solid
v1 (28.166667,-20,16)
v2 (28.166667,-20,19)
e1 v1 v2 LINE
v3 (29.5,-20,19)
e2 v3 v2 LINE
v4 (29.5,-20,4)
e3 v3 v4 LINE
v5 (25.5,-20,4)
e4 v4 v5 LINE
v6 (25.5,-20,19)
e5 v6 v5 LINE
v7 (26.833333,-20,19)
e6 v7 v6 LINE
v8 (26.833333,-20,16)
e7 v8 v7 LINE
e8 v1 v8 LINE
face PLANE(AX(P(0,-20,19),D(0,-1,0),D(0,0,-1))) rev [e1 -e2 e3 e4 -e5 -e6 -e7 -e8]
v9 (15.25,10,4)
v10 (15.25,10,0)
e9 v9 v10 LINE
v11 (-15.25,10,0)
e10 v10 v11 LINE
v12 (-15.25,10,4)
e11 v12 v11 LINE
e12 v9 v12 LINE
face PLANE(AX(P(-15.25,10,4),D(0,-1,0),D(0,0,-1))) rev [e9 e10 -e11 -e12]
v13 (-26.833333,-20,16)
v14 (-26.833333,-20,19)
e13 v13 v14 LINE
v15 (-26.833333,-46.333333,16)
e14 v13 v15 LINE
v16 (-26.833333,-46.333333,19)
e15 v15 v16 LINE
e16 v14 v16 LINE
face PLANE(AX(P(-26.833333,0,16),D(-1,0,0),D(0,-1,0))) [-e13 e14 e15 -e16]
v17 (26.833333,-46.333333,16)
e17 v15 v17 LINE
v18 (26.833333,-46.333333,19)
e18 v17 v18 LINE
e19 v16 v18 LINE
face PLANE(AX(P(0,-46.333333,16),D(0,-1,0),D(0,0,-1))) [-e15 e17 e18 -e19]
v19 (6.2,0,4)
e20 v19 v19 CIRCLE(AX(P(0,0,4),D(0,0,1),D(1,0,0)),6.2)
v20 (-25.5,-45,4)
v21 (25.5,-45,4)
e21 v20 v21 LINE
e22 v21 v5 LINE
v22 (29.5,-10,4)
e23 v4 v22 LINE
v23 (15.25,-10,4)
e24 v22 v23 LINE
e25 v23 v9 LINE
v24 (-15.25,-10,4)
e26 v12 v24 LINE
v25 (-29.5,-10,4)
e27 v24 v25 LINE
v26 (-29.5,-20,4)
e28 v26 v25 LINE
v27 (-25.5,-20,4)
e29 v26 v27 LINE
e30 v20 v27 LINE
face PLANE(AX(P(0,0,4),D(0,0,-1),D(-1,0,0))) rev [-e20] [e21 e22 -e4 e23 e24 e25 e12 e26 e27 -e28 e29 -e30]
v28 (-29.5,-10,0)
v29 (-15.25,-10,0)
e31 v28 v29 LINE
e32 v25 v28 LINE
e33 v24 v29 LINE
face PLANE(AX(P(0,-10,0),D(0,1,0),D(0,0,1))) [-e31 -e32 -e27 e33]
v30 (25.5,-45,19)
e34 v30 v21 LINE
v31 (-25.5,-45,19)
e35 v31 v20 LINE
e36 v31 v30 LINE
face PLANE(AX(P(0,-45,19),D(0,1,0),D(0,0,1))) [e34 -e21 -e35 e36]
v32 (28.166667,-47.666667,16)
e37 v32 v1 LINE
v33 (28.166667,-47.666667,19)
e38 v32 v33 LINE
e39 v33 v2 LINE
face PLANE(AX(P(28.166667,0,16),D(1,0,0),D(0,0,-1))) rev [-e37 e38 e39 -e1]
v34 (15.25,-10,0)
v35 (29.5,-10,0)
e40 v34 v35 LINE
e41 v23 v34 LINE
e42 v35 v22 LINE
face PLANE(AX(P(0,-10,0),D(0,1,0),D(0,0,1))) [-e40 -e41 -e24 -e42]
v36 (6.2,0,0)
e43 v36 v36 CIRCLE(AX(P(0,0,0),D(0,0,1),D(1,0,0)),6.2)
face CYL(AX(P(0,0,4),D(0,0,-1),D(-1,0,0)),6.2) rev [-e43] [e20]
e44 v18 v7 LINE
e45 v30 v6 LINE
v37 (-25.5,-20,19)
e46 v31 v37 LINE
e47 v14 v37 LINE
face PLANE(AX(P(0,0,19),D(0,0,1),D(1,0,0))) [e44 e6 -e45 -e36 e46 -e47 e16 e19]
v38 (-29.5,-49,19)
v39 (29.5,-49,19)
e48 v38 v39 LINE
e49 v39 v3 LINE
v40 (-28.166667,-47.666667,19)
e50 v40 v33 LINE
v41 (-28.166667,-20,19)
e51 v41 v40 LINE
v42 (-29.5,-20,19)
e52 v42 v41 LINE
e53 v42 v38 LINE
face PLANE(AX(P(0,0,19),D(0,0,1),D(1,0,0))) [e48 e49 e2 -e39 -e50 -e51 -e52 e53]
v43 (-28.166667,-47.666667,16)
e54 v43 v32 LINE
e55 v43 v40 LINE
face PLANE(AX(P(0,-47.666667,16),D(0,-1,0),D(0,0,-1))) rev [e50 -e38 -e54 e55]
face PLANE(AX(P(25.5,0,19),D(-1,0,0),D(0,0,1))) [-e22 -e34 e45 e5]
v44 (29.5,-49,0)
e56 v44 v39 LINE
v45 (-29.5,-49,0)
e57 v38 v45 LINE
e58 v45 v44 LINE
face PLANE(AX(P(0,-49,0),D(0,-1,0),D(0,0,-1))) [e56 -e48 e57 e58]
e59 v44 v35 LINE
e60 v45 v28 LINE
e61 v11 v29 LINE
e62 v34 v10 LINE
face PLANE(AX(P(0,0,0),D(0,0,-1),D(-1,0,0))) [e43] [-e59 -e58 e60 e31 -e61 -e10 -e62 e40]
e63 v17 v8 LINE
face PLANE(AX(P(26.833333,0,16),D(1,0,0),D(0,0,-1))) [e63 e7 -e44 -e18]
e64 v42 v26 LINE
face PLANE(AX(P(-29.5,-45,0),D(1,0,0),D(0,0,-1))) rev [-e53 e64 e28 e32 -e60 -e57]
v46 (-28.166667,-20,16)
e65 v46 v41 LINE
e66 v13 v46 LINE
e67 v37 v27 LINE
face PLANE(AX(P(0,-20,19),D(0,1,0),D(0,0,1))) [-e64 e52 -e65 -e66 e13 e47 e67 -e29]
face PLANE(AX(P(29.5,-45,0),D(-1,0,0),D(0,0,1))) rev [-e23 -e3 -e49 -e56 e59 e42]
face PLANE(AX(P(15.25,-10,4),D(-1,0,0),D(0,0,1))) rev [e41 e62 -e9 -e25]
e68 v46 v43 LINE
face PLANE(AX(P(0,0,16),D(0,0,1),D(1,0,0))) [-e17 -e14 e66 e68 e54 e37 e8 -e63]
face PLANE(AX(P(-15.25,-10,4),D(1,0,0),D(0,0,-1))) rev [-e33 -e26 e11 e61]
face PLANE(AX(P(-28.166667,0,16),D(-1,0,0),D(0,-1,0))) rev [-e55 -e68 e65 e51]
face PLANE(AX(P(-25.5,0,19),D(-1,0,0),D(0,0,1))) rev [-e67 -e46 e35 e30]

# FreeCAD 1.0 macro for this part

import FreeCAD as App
import Part
import Sketcher
Q = App.Units.Quantity

doc = App.newDocument("Part")
params = doc.addObject("Spreadsheet::Sheet", "Params")
for row, (alias, value) in enumerate([
    ("sketch1_diameter", "12.4 mm"),
    ("sketch1_height", "20 mm"),
    ("sketch1_width", "30.5 mm"),
    ("pad1_length", "4 mm"),
    ("sketch2_width", "59 mm"),
    ("sketch2_height", "4 mm"),
    ("pad2_length", "35 mm"),
    ("sketch3_width", "59 mm"),
    ("sketch3_height", "4 mm"),
    ("pad3_length", "4 mm"),
    ("sketch4_width", "59 mm"),
    ("sketch4_width2", "4 mm"),
    ("sketch4_height", "29 mm"),
    ("sketch4_height2", "25 mm"),
    ("pad4_length", "15 mm"),
    ("pocket1_length", "3 mm"),
], start=1):
    params.set(f"A{row}", alias)
    params.set(f"B{row}", "=" + value)
    params.setAlias(f"B{row}", alias)

body = doc.addObject("PartDesign::Body", "Body")

# Sketch on XY plane
sketch1 = body.newObject("Sketcher::SketchObject", "Sketch")
sketch1.AttachmentSupport = (doc.getObject("XY_Plane"), [""])
sketch1.MapMode = "FlatFace"
sketch1.addGeometry([
    Part.LineSegment(App.Vector(-15.25, 10, 0), App.Vector(-15.25, -10, 0)),  # 0
    Part.LineSegment(App.Vector(-15.25, -10, 0), App.Vector(15.25, -10, 0)),  # 1
    Part.LineSegment(App.Vector(15.25, -10, 0), App.Vector(15.25, 10, 0)),  # 2
    Part.LineSegment(App.Vector(15.25, 10, 0), App.Vector(-15.25, 10, 0)),  # 3
    Part.Circle(App.Vector(0, 0, 0), App.Vector(0, 0, 1), 6.2),  # 4
], False)
sketch1.addConstraint([
    Sketcher.Constraint("Coincident", 0, 2, 1, 1),
    Sketcher.Constraint("Coincident", 1, 2, 2, 1),
    Sketcher.Constraint("Coincident", 2, 2, 3, 1),
    Sketcher.Constraint("Coincident", 3, 2, 0, 1),
    Sketcher.Constraint("Vertical", 0),
    Sketcher.Constraint("Horizontal", 1),
    Sketcher.Constraint("Vertical", 2),
    Sketcher.Constraint("Horizontal", 3),
    Sketcher.Constraint("Coincident", 4, 3, -1, 1),
    Sketcher.Constraint("Symmetric", 0, 2, 2, 2, -1, 1),
    Sketcher.Constraint("Diameter", 4, Q("12.4 mm")),
    Sketcher.Constraint("DistanceY", 0, 2, 0, 1, Q("20 mm")),
    Sketcher.Constraint("DistanceX", 1, 1, 1, 2, Q("30.5 mm")),
])
sketch1.setExpression("Constraints[10]", "Params.sketch1_diameter")
sketch1.setExpression("Constraints[11]", "Params.sketch1_height")
sketch1.setExpression("Constraints[12]", "Params.sketch1_width")
pad1 = body.newObject("PartDesign::Pad", "Pad")
pad1.Profile = sketch1
pad1.setExpression("Length", "Params.pad1_length")

# Sketch on XZ plane
sketch2 = body.newObject("Sketcher::SketchObject", "Sketch001")
sketch2.AttachmentSupport = (doc.getObject("XZ_Plane"), [""])
sketch2.MapMode = "FlatFace"
sketch2.AttachmentOffset = App.Placement(App.Vector(0, 0, 10), App.Rotation())
sketch2.addGeometry([
    Part.LineSegment(App.Vector(-29.5, 4, 0), App.Vector(-29.5, 0, 0)),
    Part.LineSegment(App.Vector(-29.5, 0, 0), App.Vector(29.5, 0, 0)),
    Part.LineSegment(App.Vector(29.5, 0, 0), App.Vector(29.5, 4, 0)),
    Part.LineSegment(App.Vector(29.5, 4, 0), App.Vector(-29.5, 4, 0)),
], False)
sketch2.addConstraint([
    Sketcher.Constraint("Coincident", 0, 2, 1, 1),
    Sketcher.Constraint("Coincident", 1, 2, 2, 1),
    Sketcher.Constraint("Coincident", 2, 2, 3, 1),
    Sketcher.Constraint("Coincident", 3, 2, 0, 1),
    Sketcher.Constraint("Vertical", 0),
    Sketcher.Constraint("Horizontal", 1),
    Sketcher.Constraint("Vertical", 2),
    Sketcher.Constraint("Horizontal", 3),
    Sketcher.Constraint("Symmetric", 0, 2, 1, 2, -1, 1),
    Sketcher.Constraint("DistanceX", 1, 1, 1, 2, Q("59 mm")),
    Sketcher.Constraint("DistanceY", 0, 2, 0, 1, Q("4 mm")),
])
sketch2.setExpression("Constraints[9]", "Params.sketch2_width")
sketch2.setExpression("Constraints[10]", "Params.sketch2_height")
pad2 = body.newObject("PartDesign::Pad", "Pad001")
pad2.Profile = sketch2
pad2.setExpression("Length", "Params.pad2_length")

# Sketch on XZ plane
sketch3 = body.newObject("Sketcher::SketchObject", "Sketch002")
sketch3.AttachmentSupport = (doc.getObject("XZ_Plane"), [""])
sketch3.MapMode = "FlatFace"
sketch3.AttachmentOffset = App.Placement(App.Vector(0, 0, 45), App.Rotation())
sketch3.addGeometry([
    Part.LineSegment(App.Vector(-29.5, 4, 0), App.Vector(-29.5, 0, 0)),
    Part.LineSegment(App.Vector(-29.5, 0, 0), App.Vector(29.5, 0, 0)),
    Part.LineSegment(App.Vector(29.5, 0, 0), App.Vector(29.5, 4, 0)),
    Part.LineSegment(App.Vector(29.5, 4, 0), App.Vector(-29.5, 4, 0)),
], False)
sketch3.addConstraint([
    Sketcher.Constraint("Coincident", 0, 2, 1, 1),
    Sketcher.Constraint("Coincident", 1, 2, 2, 1),
    Sketcher.Constraint("Coincident", 2, 2, 3, 1),
    Sketcher.Constraint("Coincident", 3, 2, 0, 1),
    Sketcher.Constraint("Vertical", 0),
    Sketcher.Constraint("Horizontal", 1),
    Sketcher.Constraint("Vertical", 2),
    Sketcher.Constraint("Horizontal", 3),
    Sketcher.Constraint("Symmetric", 0, 2, 1, 2, -1, 1),
    Sketcher.Constraint("DistanceX", 1, 1, 1, 2, Q("59 mm")),
    Sketcher.Constraint("DistanceY", 0, 2, 0, 1, Q("4 mm")),
])
sketch3.setExpression("Constraints[9]", "Params.sketch3_width")
sketch3.setExpression("Constraints[10]", "Params.sketch3_height")
pad3 = body.newObject("PartDesign::Pad", "Pad002")
pad3.Profile = sketch3
pad3.setExpression("Length", "Params.pad3_length")

# Sketch on XY plane
sketch4 = body.newObject("Sketcher::SketchObject", "Sketch003")
sketch4.AttachmentSupport = (doc.getObject("XY_Plane"), [""])
sketch4.MapMode = "FlatFace"
sketch4.AttachmentOffset = App.Placement(App.Vector(0, 0, 4), App.Rotation())
sketch4.addGeometry([
    Part.LineSegment(App.Vector(-29.5, -20, 0), App.Vector(-29.5, -49, 0)),  # 0
    Part.LineSegment(App.Vector(-29.5, -49, 0), App.Vector(29.5, -49, 0)),  # 1
    Part.LineSegment(App.Vector(29.5, -49, 0), App.Vector(29.5, -20, 0)),  # 2
    Part.LineSegment(App.Vector(29.5, -20, 0), App.Vector(25.5, -20, 0)),  # 3
    Part.LineSegment(App.Vector(25.5, -20, 0), App.Vector(25.5, -45, 0)),  # 4
    Part.LineSegment(App.Vector(25.5, -45, 0), App.Vector(-25.5, -45, 0)),  # 5
    Part.LineSegment(App.Vector(-25.5, -45, 0), App.Vector(-25.5, -20, 0)),  # 6
    Part.LineSegment(App.Vector(-25.5, -20, 0), App.Vector(-29.5, -20, 0)),  # 7
], False)
sketch4.addConstraint([
    Sketcher.Constraint("Coincident", 0, 2, 1, 1),
    Sketcher.Constraint("Coincident", 1, 2, 2, 1),
    Sketcher.Constraint("Coincident", 2, 2, 3, 1),
    Sketcher.Constraint("Coincident", 3, 2, 4, 1),
    Sketcher.Constraint("Coincident", 4, 2, 5, 1),
    Sketcher.Constraint("Coincident", 5, 2, 6, 1),
    Sketcher.Constraint("Coincident", 6, 2, 7, 1),
    Sketcher.Constraint("Coincident", 7, 2, 0, 1),
    Sketcher.Constraint("Vertical", 0),
    Sketcher.Constraint("Horizontal", 1),
    Sketcher.Constraint("Vertical", 2),
    Sketcher.Constraint("Horizontal", 3),
    Sketcher.Constraint("Vertical", 4),
    Sketcher.Constraint("Horizontal", 5),
    Sketcher.Constraint("Vertical", 6),
    Sketcher.Constraint("Horizontal", 7),
    Sketcher.Constraint("Symmetric", 3, 2, 6, 2, -2),
    Sketcher.Constraint("Equal", 3, 7),
    Sketcher.Constraint("DistanceX", 1, 1, 1, 2, Q("59 mm")),
    Sketcher.Constraint("DistanceX", 3, 2, 3, 1, Q("4 mm")),
    Sketcher.Constraint("DistanceY", 0, 2, 0, 1, Q("29 mm")),
    Sketcher.Constraint("DistanceY", 4, 2, 4, 1, Q("25 mm")),
    Sketcher.Constraint("DistanceY", 0, 2, -1, 1, Q("49 mm")),
])
sketch4.setExpression("Constraints[18]", "Params.sketch4_width")
sketch4.setExpression("Constraints[19]", "Params.sketch4_width2")
sketch4.setExpression("Constraints[20]", "Params.sketch4_height")
sketch4.setExpression("Constraints[21]", "Params.sketch4_height2")
pad4 = body.newObject("PartDesign::Pad", "Pad003")
pad4.Profile = sketch4
pad4.setExpression("Length", "Params.pad4_length")

# Sketch on XY plane
sketch5 = body.newObject("Sketcher::SketchObject", "Sketch004")
sketch5.AttachmentSupport = (doc.getObject("XY_Plane"), [""])
sketch5.MapMode = "FlatFace"
sketch5.AttachmentOffset = App.Placement(App.Vector(0, 0, 19), App.Rotation())
sketch5.addGeometry([
    Part.LineSegment(App.Vector(-26.833333, -20, 0), App.Vector(-28.166667, -20, 0)),  # 0
    Part.LineSegment(App.Vector(-28.166667, -20, 0), App.Vector(-28.166667, -47.666667, 0)),  # 1
    Part.LineSegment(App.Vector(-28.166667, -47.666667, 0), App.Vector(28.166667, -47.666667, 0)),  # 2
    Part.LineSegment(App.Vector(28.166667, -47.666667, 0), App.Vector(28.166667, -20, 0)),  # 3
    Part.LineSegment(App.Vector(28.166667, -20, 0), App.Vector(26.833333, -20, 0)),  # 4
    Part.LineSegment(App.Vector(26.833333, -20, 0), App.Vector(26.833333, -46.333333, 0)),  # 5
    Part.LineSegment(App.Vector(26.833333, -46.333333, 0), App.Vector(-26.833333, -46.333333, 0)),  # 6
    Part.LineSegment(App.Vector(-26.833333, -46.333333, 0), App.Vector(-26.833333, -20, 0)),  # 7
], False)
sketch5.addConstraint([
    Sketcher.Constraint("Coincident", 0, 2, 1, 1),
    Sketcher.Constraint("Coincident", 1, 2, 2, 1),
    Sketcher.Constraint("Coincident", 2, 2, 3, 1),
    Sketcher.Constraint("Coincident", 3, 2, 4, 1),
    Sketcher.Constraint("Coincident", 4, 2, 5, 1),
    Sketcher.Constraint("Coincident", 5, 2, 6, 1),
    Sketcher.Constraint("Coincident", 6, 2, 7, 1),
    Sketcher.Constraint("Coincident", 7, 2, 0, 1),
    Sketcher.Constraint("Horizontal", 0),
    Sketcher.Constraint("Vertical", 1),
    Sketcher.Constraint("Horizontal", 2),
    Sketcher.Constraint("Vertical", 3),
    Sketcher.Constraint("Horizontal", 4),
    Sketcher.Constraint("Vertical", 5),
    Sketcher.Constraint("Horizontal", 6),
    Sketcher.Constraint("Vertical", 7),
    Sketcher.Constraint("Symmetric", 0, 2, 3, 2, -2),
    Sketcher.Constraint("Equal", 0, 4),
    Sketcher.Constraint("DistanceY", 0, 2, -1, 1, Q("20 mm")),
    Sketcher.Constraint("DistanceX", 0, 2, 4, 2, Q("55 mm")),
    Sketcher.Constraint("DistanceX", 0, 2, 0, 1, Q("1.333333 mm")),
    Sketcher.Constraint("DistanceY", 1, 2, 1, 1, Q("27.666667 mm")),
    Sketcher.Constraint("DistanceY", 5, 2, 5, 1, Q("26.333333 mm")),
])
pocket1 = body.newObject("PartDesign::Pocket", "Pocket")
pocket1.Profile = sketch5
pocket1.setExpression("Length", "Params.pocket1_length")

doc.recompute()
